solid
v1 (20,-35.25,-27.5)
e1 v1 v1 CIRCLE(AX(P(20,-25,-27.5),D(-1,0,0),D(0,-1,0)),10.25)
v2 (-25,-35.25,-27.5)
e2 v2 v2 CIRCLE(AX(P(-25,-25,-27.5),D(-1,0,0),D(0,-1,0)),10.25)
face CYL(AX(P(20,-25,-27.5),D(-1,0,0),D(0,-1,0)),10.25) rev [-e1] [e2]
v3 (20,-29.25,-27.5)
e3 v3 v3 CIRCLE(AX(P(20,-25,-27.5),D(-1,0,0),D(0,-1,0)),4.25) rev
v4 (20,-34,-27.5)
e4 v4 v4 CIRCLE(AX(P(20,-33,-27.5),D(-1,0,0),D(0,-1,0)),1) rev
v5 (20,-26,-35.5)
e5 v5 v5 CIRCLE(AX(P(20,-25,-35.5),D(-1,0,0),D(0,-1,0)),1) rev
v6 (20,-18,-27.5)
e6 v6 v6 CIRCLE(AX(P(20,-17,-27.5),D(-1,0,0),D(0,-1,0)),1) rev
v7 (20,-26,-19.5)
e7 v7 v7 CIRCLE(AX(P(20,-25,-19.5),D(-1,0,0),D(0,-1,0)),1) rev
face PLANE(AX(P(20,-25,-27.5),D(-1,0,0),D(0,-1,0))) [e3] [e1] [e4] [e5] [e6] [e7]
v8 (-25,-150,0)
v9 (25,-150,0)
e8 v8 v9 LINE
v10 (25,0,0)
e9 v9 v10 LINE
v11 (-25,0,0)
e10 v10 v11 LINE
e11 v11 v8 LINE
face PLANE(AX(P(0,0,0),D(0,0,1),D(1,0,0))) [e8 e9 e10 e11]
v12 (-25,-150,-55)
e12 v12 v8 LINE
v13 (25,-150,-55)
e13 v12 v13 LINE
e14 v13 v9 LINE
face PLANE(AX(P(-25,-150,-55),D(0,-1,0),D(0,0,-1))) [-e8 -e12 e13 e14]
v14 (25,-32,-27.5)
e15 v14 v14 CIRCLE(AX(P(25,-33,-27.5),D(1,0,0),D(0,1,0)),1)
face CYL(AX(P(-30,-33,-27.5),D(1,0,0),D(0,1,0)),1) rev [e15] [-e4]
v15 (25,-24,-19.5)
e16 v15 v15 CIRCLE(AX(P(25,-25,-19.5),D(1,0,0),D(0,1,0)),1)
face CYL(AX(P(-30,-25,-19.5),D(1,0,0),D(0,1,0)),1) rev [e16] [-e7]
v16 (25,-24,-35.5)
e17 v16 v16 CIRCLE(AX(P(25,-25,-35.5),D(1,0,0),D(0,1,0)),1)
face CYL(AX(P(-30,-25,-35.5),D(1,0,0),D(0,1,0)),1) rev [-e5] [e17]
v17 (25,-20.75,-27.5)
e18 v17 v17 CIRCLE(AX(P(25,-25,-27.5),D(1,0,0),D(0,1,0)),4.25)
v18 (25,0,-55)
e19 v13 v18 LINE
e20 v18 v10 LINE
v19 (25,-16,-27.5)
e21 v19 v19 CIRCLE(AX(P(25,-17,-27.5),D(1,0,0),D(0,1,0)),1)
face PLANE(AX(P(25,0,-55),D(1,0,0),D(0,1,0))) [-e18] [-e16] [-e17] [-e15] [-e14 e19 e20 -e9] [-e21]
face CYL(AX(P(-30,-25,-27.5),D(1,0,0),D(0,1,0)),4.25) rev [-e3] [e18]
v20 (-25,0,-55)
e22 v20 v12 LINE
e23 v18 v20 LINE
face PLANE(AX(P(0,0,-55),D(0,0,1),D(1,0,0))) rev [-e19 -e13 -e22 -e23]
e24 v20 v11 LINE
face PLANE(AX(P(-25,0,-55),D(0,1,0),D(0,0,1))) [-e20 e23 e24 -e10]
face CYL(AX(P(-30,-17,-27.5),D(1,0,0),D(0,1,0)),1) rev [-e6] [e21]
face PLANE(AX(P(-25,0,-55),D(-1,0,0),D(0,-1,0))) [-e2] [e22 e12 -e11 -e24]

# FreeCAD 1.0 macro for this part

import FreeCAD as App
import Part
import Sketcher

V = App.Vector
Q = App.Units.Quantity

doc = App.newDocument("Part")
body = doc.addObject("PartDesign::Body", "Body")

# Sketch on XY plane
sketch1 = body.newObject("Sketcher::SketchObject", "Sketch")
sketch1.AttachmentSupport = (doc.getObject("XY_Plane"), [""])
sketch1.MapMode = "FlatFace"
sketch1.addGeometry([
    Part.LineSegment(V(-25, 0, 0), V(-25, -150, 0)),
    Part.LineSegment(V(-25, -150, 0), V(25, -150, 0)),
    Part.LineSegment(V(25, -150, 0), V(25, 0, 0)),
    Part.LineSegment(V(25, 0, 0), V(-25, 0, 0)),
], False)
sketch1.addConstraint([
    Sketcher.Constraint("Coincident", 0, 2, 1, 1),
    Sketcher.Constraint("Coincident", 1, 2, 2, 1),
    Sketcher.Constraint("Coincident", 2, 2, 3, 1),
    Sketcher.Constraint("Coincident", 3, 2, 0, 1),
    Sketcher.Constraint("Vertical", 0),
    Sketcher.Constraint("Horizontal", 1),
    Sketcher.Constraint("Vertical", 2),
    Sketcher.Constraint("Horizontal", 3),
    Sketcher.Constraint("Symmetric", 2, 2, 3, 2, -1, 1),
    Sketcher.Constraint("DistanceX", 1, 1, 1, 2, Q("50 mm")),
    Sketcher.Constraint("DistanceY", 0, 2, 0, 1, Q("150 mm")),
])
pad1 = body.newObject("PartDesign::Pad", "Pad")
pad1.Profile = sketch1
pad1.Length = 55
pad1.Reversed = True

# Sketch on YZ plane
sketch2 = body.newObject("Sketcher::SketchObject", "Sketch001")
sketch2.AttachmentSupport = (doc.getObject("YZ_Plane"), [""])
sketch2.MapMode = "FlatFace"
sketch2.AttachmentOffset = App.Placement(V(0, 0, 25), App.Rotation())
sketch2.addGeometry(Part.Circle(V(-25, -27.5, 0), V(0, 0, 1), 10.25), False)
sketch2.addConstraint([
    Sketcher.Constraint("Diameter", 0, Q("20.5 mm")),
    Sketcher.Constraint("DistanceX", 0, 3, -1, 1, Q("25 mm")),
    Sketcher.Constraint("DistanceY", 0, 3, -1, 1, Q("27.5 mm")),
])
pocket1 = body.newObject("PartDesign::Pocket", "Pocket")
pocket1.Profile = sketch2
pocket1.Type = "TwoLengths"
pocket1.Length = 168.40669
pocket1.Length2 = 45
pocket1.Reversed = True

# Sketch on YZ plane
sketch3 = body.newObject("Sketcher::SketchObject", "Sketch002")
sketch3.AttachmentSupport = (doc.getObject("YZ_Plane"), [""])
sketch3.MapMode = "FlatFace"
sketch3.AttachmentOffset = App.Placement(V(0, 0, -20), App.Rotation())
sketch3.addGeometry([
    Part.Circle(V(-17, -27.5, 0), V(0, 0, 1), 1),  # 0
    Part.Circle(V(-25, -35.5, 0), V(0, 0, 1), 1),  # 1
    Part.Circle(V(-33, -27.5, 0), V(0, 0, 1), 1),  # 2
    Part.Circle(V(-25, -19.5, 0), V(0, 0, 1), 1),  # 3
    Part.Circle(V(-25, -27.5, 0), V(0, 0, 1), 4.25),  # 4
], False)
sketch3.addConstraint([
    Sketcher.Constraint("Equal", 0, 1),
    Sketcher.Constraint("Equal", 1, 2),
    Sketcher.Constraint("Equal", 2, 3),
    Sketcher.Constraint("Horizontal", 0, 3, 2, 3),
    Sketcher.Constraint("Horizontal", 2, 3, 4, 3),
    Sketcher.Constraint("Vertical", 1, 3, 3, 3),
    Sketcher.Constraint("Vertical", 3, 3, 4, 3),
    Sketcher.Constraint("Diameter", 0, Q("2 mm")),
    Sketcher.Constraint("Diameter", 4, Q("8.5 mm")),
    Sketcher.Constraint("DistanceX", 0, 3, -1, 1, Q("17 mm")),
    Sketcher.Constraint("DistanceX", 1, 3, -1, 1, Q("25 mm")),
    Sketcher.Constraint("DistanceX", 2, 3, -1, 1, Q("33 mm")),
    Sketcher.Constraint("DistanceY", 1, 3, 0, 3, Q("8 mm")),
    Sketcher.Constraint("DistanceY", 0, 3, 3, 3, Q("8 mm")),
    Sketcher.Constraint("DistanceY", 0, 3, -1, 1, Q("27.5 mm")),
])
pocket2 = body.newObject("PartDesign::Pocket", "Pocket001")
pocket2.Profile = sketch3
pocket2.Length = 10

# Sketch on YZ plane
sketch4 = body.newObject("Sketcher::SketchObject", "Sketch003")
sketch4.AttachmentSupport = (doc.getObject("YZ_Plane"), [""])
sketch4.MapMode = "FlatFace"
sketch4.AttachmentOffset = App.Placement(V(0, 0, 25), App.Rotation())
sketch4.addGeometry([
    Part.Circle(V(-25, -27.5, 0), V(0, 0, 1), 10.25),  # 0
    Part.Circle(V(-33, -27.5, 0), V(0, 0, 1), 1),  # 1
    Part.Circle(V(-25, -19.5, 0), V(0, 0, 1), 1),  # 2
    Part.Circle(V(-25, -27.5, 0), V(0, 0, 1), 4.25),  # 3
    Part.Circle(V(-25, -35.5, 0), V(0, 0, 1), 1),  # 4
    Part.Circle(V(-17, -27.5, 0), V(0, 0, 1), 1),  # 5
], False)
sketch4.addConstraint([
    Sketcher.Constraint("Coincident", 3, 3, 0, 3),
    Sketcher.Constraint("Equal", 1, 2),
    Sketcher.Constraint("Equal", 2, 4),
    Sketcher.Constraint("Equal", 4, 5),
    Sketcher.Constraint("Horizontal", 0, 3, 1, 3),
    Sketcher.Constraint("Horizontal", 3, 3, 5, 3),
    Sketcher.Constraint("Vertical", 0, 3, 2, 3),
    Sketcher.Constraint("Vertical", 3, 3, 4, 3),
    Sketcher.Constraint("Diameter", 1, Q("2 mm")),
    Sketcher.Constraint("Diameter", 0, Q("20.5 mm")),
    Sketcher.Constraint("Diameter", 3, Q("8.5 mm")),
    Sketcher.Constraint("DistanceX", 0, 3, -1, 1, Q("25 mm")),
    Sketcher.Constraint("DistanceX", 1, 3, -1, 1, Q("33 mm")),
    Sketcher.Constraint("DistanceX", 5, 3, -1, 1, Q("17 mm")),
    Sketcher.Constraint("DistanceY", 0, 3, 2, 3, Q("8 mm")),
    Sketcher.Constraint("DistanceY", 4, 3, 0, 3, Q("8 mm")),
    Sketcher.Constraint("DistanceY", 0, 3, -1, 1, Q("27.5 mm")),
])
pad2 = body.newObject("PartDesign::Pad", "Pad001")
pad2.Profile = sketch4
pad2.Length = 45
pad2.Reversed = True

# Sketch on YZ plane
sketch5 = body.newObject("Sketcher::SketchObject", "Sketch004")
sketch5.AttachmentSupport = (doc.getObject("YZ_Plane"), [""])
sketch5.MapMode = "FlatFace"
sketch5.AttachmentOffset = App.Placement(V(0, 0, -25), App.Rotation())
sketch5.addGeometry(Part.Circle(V(-25, -27.5, 0), V(0, 0, 1), 10.25), False)
sketch5.addConstraint([
    Sketcher.Constraint("Diameter", 0, Q("20.5 mm")),
    Sketcher.Constraint("DistanceX", 0, 3, -1, 1, Q("25 mm")),
    Sketcher.Constraint("DistanceY", 0, 3, -1, 1, Q("27.5 mm")),
])
pocket3 = body.newObject("PartDesign::Pocket", "Pocket002")
pocket3.Profile = sketch5
pocket3.Length = 45
pocket3.Reversed = True

doc.recompute()
